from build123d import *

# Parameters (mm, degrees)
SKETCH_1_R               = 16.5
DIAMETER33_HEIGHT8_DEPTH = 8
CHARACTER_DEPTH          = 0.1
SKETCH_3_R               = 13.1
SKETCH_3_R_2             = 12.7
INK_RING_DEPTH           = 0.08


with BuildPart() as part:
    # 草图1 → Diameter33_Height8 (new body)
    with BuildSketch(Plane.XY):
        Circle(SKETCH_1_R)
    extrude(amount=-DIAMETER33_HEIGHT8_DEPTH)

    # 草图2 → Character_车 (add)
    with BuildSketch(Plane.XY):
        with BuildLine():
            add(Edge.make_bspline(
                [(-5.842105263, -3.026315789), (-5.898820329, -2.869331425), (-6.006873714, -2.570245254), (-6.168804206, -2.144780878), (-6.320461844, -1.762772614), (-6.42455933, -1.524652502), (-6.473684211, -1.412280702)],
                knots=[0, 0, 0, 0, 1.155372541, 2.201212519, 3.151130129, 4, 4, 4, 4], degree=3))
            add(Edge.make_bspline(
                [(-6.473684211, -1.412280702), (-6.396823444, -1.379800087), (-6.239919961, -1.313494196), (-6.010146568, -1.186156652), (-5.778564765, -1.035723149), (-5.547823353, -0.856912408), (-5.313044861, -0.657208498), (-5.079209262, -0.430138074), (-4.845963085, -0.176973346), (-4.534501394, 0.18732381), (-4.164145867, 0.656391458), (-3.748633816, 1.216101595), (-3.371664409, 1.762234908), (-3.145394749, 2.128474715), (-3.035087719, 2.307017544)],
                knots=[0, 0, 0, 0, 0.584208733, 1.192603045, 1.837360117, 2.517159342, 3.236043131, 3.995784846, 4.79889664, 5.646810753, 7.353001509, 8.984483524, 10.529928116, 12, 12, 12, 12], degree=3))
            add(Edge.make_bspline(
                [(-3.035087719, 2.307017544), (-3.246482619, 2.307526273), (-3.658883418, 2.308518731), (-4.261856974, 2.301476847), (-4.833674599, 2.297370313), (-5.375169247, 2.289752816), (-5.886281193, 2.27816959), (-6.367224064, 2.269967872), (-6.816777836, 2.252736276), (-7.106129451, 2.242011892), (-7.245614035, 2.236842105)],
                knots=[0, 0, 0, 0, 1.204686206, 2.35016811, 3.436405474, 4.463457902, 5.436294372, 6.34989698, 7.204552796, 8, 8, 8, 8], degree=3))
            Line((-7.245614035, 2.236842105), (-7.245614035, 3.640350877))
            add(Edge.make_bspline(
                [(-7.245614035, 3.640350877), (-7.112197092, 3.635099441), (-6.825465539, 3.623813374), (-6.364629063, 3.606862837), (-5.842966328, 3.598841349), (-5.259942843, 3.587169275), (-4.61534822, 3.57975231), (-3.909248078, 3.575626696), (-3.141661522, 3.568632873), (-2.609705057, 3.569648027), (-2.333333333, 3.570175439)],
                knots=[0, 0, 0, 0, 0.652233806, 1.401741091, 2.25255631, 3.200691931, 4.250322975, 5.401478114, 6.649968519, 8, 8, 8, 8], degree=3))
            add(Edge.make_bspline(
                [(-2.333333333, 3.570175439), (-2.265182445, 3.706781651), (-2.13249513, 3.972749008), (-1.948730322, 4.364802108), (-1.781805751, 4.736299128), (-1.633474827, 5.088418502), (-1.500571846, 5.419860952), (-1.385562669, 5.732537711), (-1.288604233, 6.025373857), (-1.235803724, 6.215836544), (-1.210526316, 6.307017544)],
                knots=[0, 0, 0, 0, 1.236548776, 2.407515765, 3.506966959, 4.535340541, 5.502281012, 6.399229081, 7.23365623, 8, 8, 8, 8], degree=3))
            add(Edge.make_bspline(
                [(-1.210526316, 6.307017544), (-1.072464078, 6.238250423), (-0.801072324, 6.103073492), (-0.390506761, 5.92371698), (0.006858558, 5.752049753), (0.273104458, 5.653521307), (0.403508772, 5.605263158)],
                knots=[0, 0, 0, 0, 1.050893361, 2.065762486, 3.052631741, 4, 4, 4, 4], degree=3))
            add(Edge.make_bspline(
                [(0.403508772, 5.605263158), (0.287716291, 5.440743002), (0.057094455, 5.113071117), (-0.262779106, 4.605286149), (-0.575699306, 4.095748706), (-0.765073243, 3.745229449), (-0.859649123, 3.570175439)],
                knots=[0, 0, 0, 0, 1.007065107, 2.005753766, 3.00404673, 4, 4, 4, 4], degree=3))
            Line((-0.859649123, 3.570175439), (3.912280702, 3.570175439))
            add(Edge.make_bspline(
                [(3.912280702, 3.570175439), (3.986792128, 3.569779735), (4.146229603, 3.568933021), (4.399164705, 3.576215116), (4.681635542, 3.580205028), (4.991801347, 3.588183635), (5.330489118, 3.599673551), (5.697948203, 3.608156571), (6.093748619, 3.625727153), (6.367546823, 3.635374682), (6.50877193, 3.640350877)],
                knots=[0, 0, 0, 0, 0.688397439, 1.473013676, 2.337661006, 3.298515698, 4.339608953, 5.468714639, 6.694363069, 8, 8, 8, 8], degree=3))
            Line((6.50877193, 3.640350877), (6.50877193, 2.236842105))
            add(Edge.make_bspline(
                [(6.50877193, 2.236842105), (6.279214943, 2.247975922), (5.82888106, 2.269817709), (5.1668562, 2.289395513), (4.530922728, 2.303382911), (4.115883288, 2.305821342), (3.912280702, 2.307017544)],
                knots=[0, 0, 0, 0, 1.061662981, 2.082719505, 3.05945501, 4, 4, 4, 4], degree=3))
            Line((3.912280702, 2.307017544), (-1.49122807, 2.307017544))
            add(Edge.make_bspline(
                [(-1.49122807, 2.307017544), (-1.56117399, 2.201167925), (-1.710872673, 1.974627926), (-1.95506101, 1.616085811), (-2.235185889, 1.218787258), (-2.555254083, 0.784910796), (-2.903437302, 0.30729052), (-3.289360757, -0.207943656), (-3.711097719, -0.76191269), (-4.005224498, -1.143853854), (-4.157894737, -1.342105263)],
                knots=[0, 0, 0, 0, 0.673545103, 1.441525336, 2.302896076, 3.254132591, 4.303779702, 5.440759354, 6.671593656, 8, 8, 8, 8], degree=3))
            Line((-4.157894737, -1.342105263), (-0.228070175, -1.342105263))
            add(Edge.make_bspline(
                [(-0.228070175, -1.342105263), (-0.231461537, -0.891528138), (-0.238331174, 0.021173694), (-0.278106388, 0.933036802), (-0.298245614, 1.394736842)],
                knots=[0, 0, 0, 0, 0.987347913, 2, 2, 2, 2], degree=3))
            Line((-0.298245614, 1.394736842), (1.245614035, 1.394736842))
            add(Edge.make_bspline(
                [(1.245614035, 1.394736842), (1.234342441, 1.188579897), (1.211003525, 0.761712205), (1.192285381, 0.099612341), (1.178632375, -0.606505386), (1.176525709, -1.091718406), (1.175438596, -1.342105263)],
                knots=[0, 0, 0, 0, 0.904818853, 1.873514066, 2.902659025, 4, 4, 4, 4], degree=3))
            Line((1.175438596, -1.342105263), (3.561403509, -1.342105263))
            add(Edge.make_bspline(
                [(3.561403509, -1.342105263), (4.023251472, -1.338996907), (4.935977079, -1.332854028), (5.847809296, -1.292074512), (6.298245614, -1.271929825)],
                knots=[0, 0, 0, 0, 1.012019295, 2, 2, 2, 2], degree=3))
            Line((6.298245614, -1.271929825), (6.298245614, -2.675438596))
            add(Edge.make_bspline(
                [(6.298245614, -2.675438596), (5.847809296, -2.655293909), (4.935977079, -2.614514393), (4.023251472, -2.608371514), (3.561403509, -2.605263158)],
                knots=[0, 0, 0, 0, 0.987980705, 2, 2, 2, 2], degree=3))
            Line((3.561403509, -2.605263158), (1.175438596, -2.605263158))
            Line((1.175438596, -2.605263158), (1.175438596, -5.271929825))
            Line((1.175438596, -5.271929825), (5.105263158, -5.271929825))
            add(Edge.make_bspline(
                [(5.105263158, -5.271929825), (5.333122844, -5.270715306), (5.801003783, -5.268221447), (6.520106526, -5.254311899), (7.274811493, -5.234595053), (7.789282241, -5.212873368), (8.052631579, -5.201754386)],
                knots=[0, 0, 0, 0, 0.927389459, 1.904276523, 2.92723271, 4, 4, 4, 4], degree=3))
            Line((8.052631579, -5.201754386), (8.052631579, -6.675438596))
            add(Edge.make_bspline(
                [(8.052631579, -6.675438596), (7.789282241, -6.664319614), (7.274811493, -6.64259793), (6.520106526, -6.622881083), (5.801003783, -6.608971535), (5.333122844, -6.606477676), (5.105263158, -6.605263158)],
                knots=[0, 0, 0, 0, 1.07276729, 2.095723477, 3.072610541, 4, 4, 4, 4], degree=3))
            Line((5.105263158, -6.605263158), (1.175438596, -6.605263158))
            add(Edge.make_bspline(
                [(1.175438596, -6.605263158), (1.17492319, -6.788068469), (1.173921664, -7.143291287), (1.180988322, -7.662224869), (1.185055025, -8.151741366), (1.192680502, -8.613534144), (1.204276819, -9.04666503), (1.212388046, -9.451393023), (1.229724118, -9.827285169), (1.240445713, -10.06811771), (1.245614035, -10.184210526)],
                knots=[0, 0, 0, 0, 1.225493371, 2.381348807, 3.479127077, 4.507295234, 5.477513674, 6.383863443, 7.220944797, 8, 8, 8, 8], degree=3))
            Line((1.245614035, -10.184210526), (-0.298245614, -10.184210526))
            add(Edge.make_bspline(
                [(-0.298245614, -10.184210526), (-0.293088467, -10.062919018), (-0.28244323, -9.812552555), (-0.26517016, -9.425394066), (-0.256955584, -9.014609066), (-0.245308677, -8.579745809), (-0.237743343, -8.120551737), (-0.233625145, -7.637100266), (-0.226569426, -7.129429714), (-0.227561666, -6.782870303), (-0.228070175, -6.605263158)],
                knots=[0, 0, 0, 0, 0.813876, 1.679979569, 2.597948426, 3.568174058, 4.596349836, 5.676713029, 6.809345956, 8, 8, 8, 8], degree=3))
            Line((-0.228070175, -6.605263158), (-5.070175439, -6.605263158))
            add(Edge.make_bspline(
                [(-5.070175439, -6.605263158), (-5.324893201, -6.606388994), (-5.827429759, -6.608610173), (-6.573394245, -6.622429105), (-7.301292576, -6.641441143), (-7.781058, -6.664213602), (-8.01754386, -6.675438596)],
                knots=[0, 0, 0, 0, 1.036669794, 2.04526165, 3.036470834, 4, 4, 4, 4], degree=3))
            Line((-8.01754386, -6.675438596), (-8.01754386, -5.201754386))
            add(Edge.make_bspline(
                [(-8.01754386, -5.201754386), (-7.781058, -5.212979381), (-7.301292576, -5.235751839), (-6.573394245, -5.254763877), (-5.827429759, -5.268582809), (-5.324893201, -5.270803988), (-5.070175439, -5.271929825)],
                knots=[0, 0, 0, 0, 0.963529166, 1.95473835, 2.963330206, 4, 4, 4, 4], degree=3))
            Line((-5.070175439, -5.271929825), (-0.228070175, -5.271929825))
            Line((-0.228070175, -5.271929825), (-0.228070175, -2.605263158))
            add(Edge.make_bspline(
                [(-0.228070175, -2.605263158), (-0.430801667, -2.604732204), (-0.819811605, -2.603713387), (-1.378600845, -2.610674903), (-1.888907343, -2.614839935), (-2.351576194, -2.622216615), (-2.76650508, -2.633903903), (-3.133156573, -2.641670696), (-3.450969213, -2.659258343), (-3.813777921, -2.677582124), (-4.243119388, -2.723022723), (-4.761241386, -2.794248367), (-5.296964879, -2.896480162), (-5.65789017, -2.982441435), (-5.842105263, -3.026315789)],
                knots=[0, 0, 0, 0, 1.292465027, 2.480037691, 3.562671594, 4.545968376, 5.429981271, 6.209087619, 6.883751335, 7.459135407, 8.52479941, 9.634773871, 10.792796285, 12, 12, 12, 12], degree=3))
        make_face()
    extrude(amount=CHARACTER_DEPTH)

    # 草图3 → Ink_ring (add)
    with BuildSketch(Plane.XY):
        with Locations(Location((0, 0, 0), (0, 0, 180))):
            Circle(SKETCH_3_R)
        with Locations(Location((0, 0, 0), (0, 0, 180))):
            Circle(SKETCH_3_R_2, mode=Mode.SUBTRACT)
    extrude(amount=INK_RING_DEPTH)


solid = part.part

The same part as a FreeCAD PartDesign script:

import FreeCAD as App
import Part
import Sketcher

V = App.Vector
Q = App.Units.Quantity

doc = App.newDocument("Part")
body = doc.addObject("PartDesign::Body", "Body")

# Sketch on XY plane
sketch1 = body.newObject("Sketcher::SketchObject", "Sketch")
sketch1.AttachmentSupport = (doc.getObject("XY_Plane"), [""])
sketch1.MapMode = "FlatFace"
sketch1.addGeometry(Part.Circle(V(0, 0, 0), V(0, 0, 1), 16), False)
sketch1.addConstraint(Sketcher.Constraint("Coincident", 0, 3, -1, 1))
sketch1.addConstraint(Sketcher.Constraint("Diameter", 0, Q("33 mm")))
pad1 = body.newObject("PartDesign::Pad", "Pad")
pad1.Profile = sketch1
pad1.Length = 8
pad1.Reversed = True

# Sketch on XY plane
sketch2 = body.newObject("Sketcher::SketchObject", "Sketch001")
sketch2.AttachmentSupport = (doc.getObject("XY_Plane"), [""])
sketch2.MapMode = "FlatFace"
sketch2.addGeometry(Part.BSplineCurve([V(-5.842105, -3.026316, 0), V(-5.89882, -2.869331, 0), V(-6.006874, -2.570245, 0), V(-6.168804, -2.144781, 0), V(-6.320462, -1.762773, 0), V(-6.424559, -1.524653, 0), V(-6.473684, -1.412281, 0)], [4, 1, 1, 1, 4], [0, 1.155372541, 2.201212519, 3.151130129, 4], False, 3, [1, 1, 1, 1, 1, 1, 1], False), False)
sketch2.addGeometry(Part.BSplineCurve([V(-0.22807, -2.605263, 0), V(-0.430802, -2.604732, 0), V(-0.819812, -2.603713, 0), V(-1.378601, -2.610675, 0), V(-1.888907, -2.61484, 0), V(-2.351576, -2.622217, 0), V(-2.766505, -2.633904, 0), V(-3.133157, -2.641671, 0), V(-3.450969, -2.659258, 0), V(-3.813778, -2.677582, 0), V(-4.243119, -2.723023, 0), V(-4.761241, -2.794248, 0), V(-5.296965, -2.89648, 0), V(-5.65789, -2.982441, 0), V(-5.842105, -3.026316, 0)], [4, 1, 1, 1, 1, 1, 1, 1, 1, 1, 1, 1, 4], [0, 1.292465027, 2.480037691, 3.562671594, 4.545968376, 5.429981271, 6.209087619, 6.883751335, 7.459135407, 8.52479941, 9.634773871, 10.792796285, 12], False, 3, [1, 1, 1, 1, 1, 1, 1, 1, 1, 1, 1, 1, 1, 1, 1], False), False)
sketch2.addGeometry(Part.LineSegment(V(-0.22807, -2.605263, 0), V(-0.22807, -5.27193, 0)), False)
sketch2.addGeometry(Part.LineSegment(V(-0.22807, -5.27193, 0), V(-5.070175, -5.27193, 0)), False)
sketch2.addGeometry(Part.BSplineCurve([V(-8.017544, -5.201754, 0), V(-7.781058, -5.212979, 0), V(-7.301293, -5.235752, 0), V(-6.573394, -5.254764, 0), V(-5.82743, -5.268583, 0), V(-5.324893, -5.270804, 0), V(-5.070175, -5.27193, 0)], [4, 1, 1, 1, 4], [0, 0.963529166, 1.95473835, 2.963330206, 4], False, 3, [1, 1, 1, 1, 1, 1, 1], False), False)
sketch2.addGeometry(Part.LineSegment(V(-8.017544, -5.201754, 0), V(-8.017544, -6.675439, 0)), False)
sketch2.addGeometry(Part.BSplineCurve([V(-5.070175, -6.605263, 0), V(-5.324893, -6.606389, 0), V(-5.82743, -6.60861, 0), V(-6.573394, -6.622429, 0), V(-7.301293, -6.641441, 0), V(-7.781058, -6.664214, 0), V(-8.017544, -6.675439, 0)], [4, 1, 1, 1, 4], [0, 1.036669794, 2.04526165, 3.036470834, 4], False, 3, [1, 1, 1, 1, 1, 1, 1], False), False)
sketch2.addGeometry(Part.LineSegment(V(-5.070175, -6.605263, 0), V(-0.22807, -6.605263, 0)), False)
sketch2.addGeometry(Part.BSplineCurve([V(-0.298246, -10.184211, 0), V(-0.293088, -10.062919, 0), V(-0.282443, -9.812553, 0), V(-0.26517, -9.425394, 0), V(-0.256956, -9.014609, 0), V(-0.245309, -8.579746, 0), V(-0.237743, -8.120552, 0), V(-0.233625, -7.6371, 0), V(-0.226569, -7.12943, 0), V(-0.227562, -6.78287, 0), V(-0.22807, -6.605263, 0)], [4, 1, 1, 1, 1, 1, 1, 1, 4], [0, 0.813876, 1.679979569, 2.597948426, 3.568174058, 4.596349836, 5.676713029, 6.809345956, 8], False, 3, [1, 1, 1, 1, 1, 1, 1, 1, 1, 1, 1], False), False)
sketch2.addGeometry(Part.LineSegment(V(-0.298246, -10.184211, 0), V(1.245614, -10.184211, 0)), False)
sketch2.addGeometry(Part.BSplineCurve([V(1.175439, -6.605263, 0), V(1.174923, -6.788068, 0), V(1.173922, -7.143291, 0), V(1.180988, -7.662225, 0), V(1.185055, -8.151741, 0), V(1.192681, -8.613534, 0), V(1.204277, -9.046665, 0), V(1.212388, -9.451393, 0), V(1.229724, -9.827285, 0), V(1.240446, -10.068118, 0), V(1.245614, -10.184211, 0)], [4, 1, 1, 1, 1, 1, 1, 1, 4], [0, 1.225493371, 2.381348807, 3.479127077, 4.507295234, 5.477513674, 6.383863443, 7.220944797, 8], False, 3, [1, 1, 1, 1, 1, 1, 1, 1, 1, 1, 1], False), False)
sketch2.addGeometry(Part.LineSegment(V(1.175439, -6.605263, 0), V(5.105263, -6.605263, 0)), False)
sketch2.addGeometry(Part.BSplineCurve([V(8.052632, -6.675439, 0), V(7.789282, -6.66432, 0), V(7.274811, -6.642598, 0), V(6.520107, -6.622881, 0), V(5.801004, -6.608972, 0), V(5.333123, -6.606478, 0), V(5.105263, -6.605263, 0)], [4, 1, 1, 1, 4], [0, 1.07276729, 2.095723477, 3.072610541, 4], False, 3, [1, 1, 1, 1, 1, 1, 1], False), False)
sketch2.addGeometry(Part.LineSegment(V(8.052632, -6.675439, 0), V(8.052632, -5.201754, 0)), False)
sketch2.addGeometry(Part.BSplineCurve([V(5.105263, -5.27193, 0), V(5.333123, -5.270715, 0), V(5.801004, -5.268221, 0), V(6.520107, -5.254312, 0), V(7.274811, -5.234595, 0), V(7.789282, -5.212873, 0), V(8.052632, -5.201754, 0)], [4, 1, 1, 1, 4], [0, 0.927389459, 1.904276523, 2.92723271, 4], False, 3, [1, 1, 1, 1, 1, 1, 1], False), False)
sketch2.addGeometry(Part.LineSegment(V(5.105263, -5.27193, 0), V(1.175439, -5.27193, 0)), False)
sketch2.addGeometry(Part.LineSegment(V(1.175439, -5.27193, 0), V(1.175439, -2.605263, 0)), False)
sketch2.addGeometry(Part.LineSegment(V(1.175439, -2.605263, 0), V(3.561404, -2.605263, 0)), False)
sketch2.addGeometry(Part.BSplineCurve([V(6.298246, -2.675439, 0), V(5.847809, -2.655294, 0), V(4.935977, -2.614514, 0), V(4.023251, -2.608372, 0), V(3.561404, -2.605263, 0)], [4, 1, 4], [0, 0.987980705, 2], False, 3, [1, 1, 1, 1, 1], False), False)
sketch2.addGeometry(Part.LineSegment(V(6.298246, -2.675439, 0), V(6.298246, -1.27193, 0)), False)
sketch2.addGeometry(Part.BSplineCurve([V(3.561404, -1.342105, 0), V(4.023251, -1.338997, 0), V(4.935977, -1.332854, 0), V(5.847809, -1.292075, 0), V(6.298246, -1.27193, 0)], [4, 1, 4], [0, 1.012019295, 2], False, 3, [1, 1, 1, 1, 1], False), False)
sketch2.addGeometry(Part.LineSegment(V(3.561404, -1.342105, 0), V(1.175439, -1.342105, 0)), False)
sketch2.addGeometry(Part.BSplineCurve([V(1.245614, 1.394737, 0), V(1.234342, 1.18858, 0), V(1.211004, 0.761712, 0), V(1.192285, 0.099612, 0), V(1.178632, -0.606505, 0), V(1.176526, -1.091718, 0), V(1.175439, -1.342105, 0)], [4, 1, 1, 1, 4], [0, 0.904818853, 1.873514066, 2.902659025, 4], False, 3, [1, 1, 1, 1, 1, 1, 1], False), False)
sketch2.addGeometry(Part.LineSegment(V(1.245614, 1.394737, 0), V(-0.298246, 1.394737, 0)), False)
sketch2.addGeometry(Part.BSplineCurve([V(-0.22807, -1.342105, 0), V(-0.231462, -0.891528, 0), V(-0.238331, 0.021174, 0), V(-0.278106, 0.933037, 0), V(-0.298246, 1.394737, 0)], [4, 1, 4], [0, 0.987347913, 2], False, 3, [1, 1, 1, 1, 1], False), False)
sketch2.addGeometry(Part.LineSegment(V(-0.22807, -1.342105, 0), V(-4.157895, -1.342105, 0)), False)
sketch2.addGeometry(Part.BSplineCurve([V(-1.491228, 2.307018, 0), V(-1.561174, 2.201168, 0), V(-1.710873, 1.974628, 0), V(-1.955061, 1.616086, 0), V(-2.235186, 1.218787, 0), V(-2.555254, 0.784911, 0), V(-2.903437, 0.307291, 0), V(-3.289361, -0.207944, 0), V(-3.711098, -0.761913, 0), V(-4.005224, -1.143854, 0), V(-4.157895, -1.342105, 0)], [4, 1, 1, 1, 1, 1, 1, 1, 4], [0, 0.673545103, 1.441525336, 2.302896076, 3.254132591, 4.303779702, 5.440759354, 6.671593656, 8], False, 3, [1, 1, 1, 1, 1, 1, 1, 1, 1, 1, 1], False), False)
sketch2.addGeometry(Part.LineSegment(V(-1.491228, 2.307018, 0), V(3.912281, 2.307018, 0)), False)
sketch2.addGeometry(Part.BSplineCurve([V(6.508772, 2.236842, 0), V(6.279215, 2.247976, 0), V(5.828881, 2.269818, 0), V(5.166856, 2.289396, 0), V(4.530923, 2.303383, 0), V(4.115883, 2.305821, 0), V(3.912281, 2.307018, 0)], [4, 1, 1, 1, 4], [0, 1.061662981, 2.082719505, 3.05945501, 4], False, 3, [1, 1, 1, 1, 1, 1, 1], False), False)
sketch2.addGeometry(Part.LineSegment(V(6.508772, 2.236842, 0), V(6.508772, 3.640351, 0)), False)
sketch2.addGeometry(Part.BSplineCurve([V(3.912281, 3.570175, 0), V(3.986792, 3.56978, 0), V(4.14623, 3.568933, 0), V(4.399165, 3.576215, 0), V(4.681636, 3.580205, 0), V(4.991801, 3.588184, 0), V(5.330489, 3.599674, 0), V(5.697948, 3.608157, 0), V(6.093749, 3.625727, 0), V(6.367547, 3.635375, 0), V(6.508772, 3.640351, 0)], [4, 1, 1, 1, 1, 1, 1, 1, 4], [0, 0.688397439, 1.473013676, 2.337661006, 3.298515698, 4.339608953, 5.468714639, 6.694363069, 8], False, 3, [1, 1, 1, 1, 1, 1, 1, 1, 1, 1, 1], False), False)
sketch2.addGeometry(Part.LineSegment(V(3.912281, 3.570175, 0), V(-0.859649, 3.570175, 0)), False)
sketch2.addGeometry(Part.BSplineCurve([V(0.403509, 5.605263, 0), V(0.287716, 5.440743, 0), V(0.057094, 5.113071, 0), V(-0.262779, 4.605286, 0), V(-0.575699, 4.095749, 0), V(-0.765073, 3.745229, 0), V(-0.859649, 3.570175, 0)], [4, 1, 1, 1, 4], [0, 1.007065107, 2.005753766, 3.00404673, 4], False, 3, [1, 1, 1, 1, 1, 1, 1], False), False)
sketch2.addGeometry(Part.BSplineCurve([V(-1.210526, 6.307018, 0), V(-1.072464, 6.23825, 0), V(-0.801072, 6.103073, 0), V(-0.390507, 5.923717, 0), V(0.006859, 5.75205, 0), V(0.273104, 5.653521, 0), V(0.403509, 5.605263, 0)], [4, 1, 1, 1, 4], [0, 1.050893361, 2.065762486, 3.052631741, 4], False, 3, [1, 1, 1, 1, 1, 1, 1], False), False)
sketch2.addGeometry(Part.BSplineCurve([V(-2.333333, 3.570175, 0), V(-2.265182, 3.706782, 0), V(-2.132495, 3.972749, 0), V(-1.94873, 4.364802, 0), V(-1.781806, 4.736299, 0), V(-1.633475, 5.088419, 0), V(-1.500572, 5.419861, 0), V(-1.385563, 5.732538, 0), V(-1.288604, 6.025374, 0), V(-1.235804, 6.215837, 0), V(-1.210526, 6.307018, 0)], [4, 1, 1, 1, 1, 1, 1, 1, 4], [0, 1.236548776, 2.407515765, 3.506966959, 4.535340541, 5.502281012, 6.399229081, 7.23365623, 8], False, 3, [1, 1, 1, 1, 1, 1, 1, 1, 1, 1, 1], False), False)
sketch2.addGeometry(Part.BSplineCurve([V(-7.245614, 3.640351, 0), V(-7.112197, 3.635099, 0), V(-6.825466, 3.623813, 0), V(-6.364629, 3.606863, 0), V(-5.842966, 3.598841, 0), V(-5.259943, 3.587169, 0), V(-4.615348, 3.579752, 0), V(-3.909248, 3.575627, 0), V(-3.141662, 3.568633, 0), V(-2.609705, 3.569648, 0), V(-2.333333, 3.570175, 0)], [4, 1, 1, 1, 1, 1, 1, 1, 4], [0, 0.652233806, 1.401741091, 2.25255631, 3.200691931, 4.250322975, 5.401478114, 6.649968519, 8], False, 3, [1, 1, 1, 1, 1, 1, 1, 1, 1, 1, 1], False), False)
sketch2.addGeometry(Part.LineSegment(V(-7.245614, 3.640351, 0), V(-7.245614, 2.236842, 0)), False)
sketch2.addGeometry(Part.BSplineCurve([V(-3.035088, 2.307018, 0), V(-3.246483, 2.307526, 0), V(-3.658883, 2.308519, 0), V(-4.261857, 2.301477, 0), V(-4.833675, 2.29737, 0), V(-5.375169, 2.289753, 0), V(-5.886281, 2.27817, 0), V(-6.367224, 2.269968, 0), V(-6.816778, 2.252736, 0), V(-7.106129, 2.242012, 0), V(-7.245614, 2.236842, 0)], [4, 1, 1, 1, 1, 1, 1, 1, 4], [0, 1.204686206, 2.35016811, 3.436405474, 4.463457902, 5.436294372, 6.34989698, 7.204552796, 8], False, 3, [1, 1, 1, 1, 1, 1, 1, 1, 1, 1, 1], False), False)
sketch2.addGeometry(Part.BSplineCurve([V(-6.473684, -1.412281, 0), V(-6.396823, -1.3798, 0), V(-6.23992, -1.313494, 0), V(-6.010147, -1.186157, 0), V(-5.778565, -1.035723, 0), V(-5.547823, -0.856912, 0), V(-5.313045, -0.657208, 0), V(-5.079209, -0.430138, 0), V(-4.845963, -0.176973, 0), V(-4.534501, 0.187324, 0), V(-4.164146, 0.656391, 0), V(-3.748634, 1.216102, 0), V(-3.371664, 1.762235, 0), V(-3.145395, 2.128475, 0), V(-3.035088, 2.307018, 0)], [4, 1, 1, 1, 1, 1, 1, 1, 1, 1, 1, 1, 4], [0, 0.584208733, 1.192603045, 1.837360117, 2.517159342, 3.236043131, 3.995784846, 4.79889664, 5.646810753, 7.353001509, 8.984483524, 10.529928116, 12], False, 3, [1, 1, 1, 1, 1, 1, 1, 1, 1, 1, 1, 1, 1, 1, 1], False), False)
sketch2.addConstraint(Sketcher.Constraint("Block", 0))
sketch2.addConstraint(Sketcher.Constraint("Block", 1))
sketch2.addConstraint(Sketcher.Constraint("Block", 4))
sketch2.addConstraint(Sketcher.Constraint("Block", 6))
sketch2.addConstraint(Sketcher.Constraint("Block", 8))
sketch2.addConstraint(Sketcher.Constraint("Block", 10))
sketch2.addConstraint(Sketcher.Constraint("Block", 12))
sketch2.addConstraint(Sketcher.Constraint("Block", 14))
sketch2.addConstraint(Sketcher.Constraint("Block", 18))
sketch2.addConstraint(Sketcher.Constraint("Block", 20))
sketch2.addConstraint(Sketcher.Constraint("Block", 22))
sketch2.addConstraint(Sketcher.Constraint("Block", 24))
sketch2.addConstraint(Sketcher.Constraint("Block", 26))
sketch2.addConstraint(Sketcher.Constraint("Block", 28))
sketch2.addConstraint(Sketcher.Constraint("Block", 30))
sketch2.addConstraint(Sketcher.Constraint("Block", 32))
sketch2.addConstraint(Sketcher.Constraint("Block", 33))
sketch2.addConstraint(Sketcher.Constraint("Block", 34))
sketch2.addConstraint(Sketcher.Constraint("Block", 35))
sketch2.addConstraint(Sketcher.Constraint("Block", 37))
sketch2.addConstraint(Sketcher.Constraint("Block", 38))
sketch2.addConstraint(Sketcher.Constraint("Coincident", 1, 1, 2, 1))
sketch2.addConstraint(Sketcher.Constraint("Coincident", 2, 2, 3, 1))
sketch2.addConstraint(Sketcher.Constraint("Coincident", 3, 2, 4, 2))
sketch2.addConstraint(Sketcher.Constraint("Coincident", 4, 1, 5, 1))
sketch2.addConstraint(Sketcher.Constraint("Coincident", 5, 2, 6, 2))
sketch2.addConstraint(Sketcher.Constraint("Coincident", 6, 1, 7, 1))
sketch2.addConstraint(Sketcher.Constraint("Coincident", 7, 2, 8, 2))
sketch2.addConstraint(Sketcher.Constraint("Coincident", 8, 1, 9, 1))
sketch2.addConstraint(Sketcher.Constraint("Coincident", 9, 2, 10, 2))
sketch2.addConstraint(Sketcher.Constraint("Coincident", 10, 1, 11, 1))
sketch2.addConstraint(Sketcher.Constraint("Coincident", 11, 2, 12, 2))
sketch2.addConstraint(Sketcher.Constraint("Coincident", 12, 1, 13, 1))
sketch2.addConstraint(Sketcher.Constraint("Coincident", 13, 2, 14, 2))
sketch2.addConstraint(Sketcher.Constraint("Coincident", 14, 1, 15, 1))
sketch2.addConstraint(Sketcher.Constraint("Coincident", 15, 2, 16, 1))
sketch2.addConstraint(Sketcher.Constraint("Coincident", 16, 2, 17, 1))
sketch2.addConstraint(Sketcher.Constraint("Coincident", 17, 2, 18, 2))
sketch2.addConstraint(Sketcher.Constraint("Coincident", 18, 1, 19, 1))
sketch2.addConstraint(Sketcher.Constraint("Coincident", 19, 2, 20, 2))
sketch2.addConstraint(Sketcher.Constraint("Coincident", 20, 1, 21, 1))
sketch2.addConstraint(Sketcher.Constraint("Coincident", 21, 2, 22, 2))
sketch2.addConstraint(Sketcher.Constraint("Coincident", 22, 1, 23, 1))
sketch2.addConstraint(Sketcher.Constraint("Coincident", 23, 2, 24, 2))
sketch2.addConstraint(Sketcher.Constraint("Coincident", 24, 1, 25, 1))
sketch2.addConstraint(Sketcher.Constraint("Coincident", 25, 2, 26, 2))
sketch2.addConstraint(Sketcher.Constraint("Coincident", 26, 1, 27, 1))
sketch2.addConstraint(Sketcher.Constraint("Coincident", 27, 2, 28, 2))
sketch2.addConstraint(Sketcher.Constraint("Coincident", 28, 1, 29, 1))
sketch2.addConstraint(Sketcher.Constraint("Coincident", 29, 2, 30, 2))
sketch2.addConstraint(Sketcher.Constraint("Coincident", 30, 1, 31, 1))
sketch2.addConstraint(Sketcher.Constraint("Coincident", 31, 2, 32, 2))
sketch2.addConstraint(Sketcher.Constraint("Coincident", 35, 1, 36, 1))
sketch2.addConstraint(Sketcher.Constraint("Coincident", 36, 2, 37, 2))
sketch2.addConstraint(Sketcher.Constraint("Vertical", 2))
sketch2.addConstraint(Sketcher.Constraint("Horizontal", 3))
sketch2.addConstraint(Sketcher.Constraint("Horizontal", 15))
sketch2.addConstraint(Sketcher.Constraint("Vertical", 16))
sketch2.addConstraint(Sketcher.Constraint("Horizontal", 17))
sketch2.addConstraint(Sketcher.Constraint("Vertical", 16, 2, 21, 2))
pad2 = body.newObject("PartDesign::Pad", "Pad001")
pad2.Profile = sketch2
pad2.Length = 0.1

# Sketch on XY plane
sketch3 = body.newObject("Sketcher::SketchObject", "Sketch002")
sketch3.AttachmentSupport = (doc.getObject("XY_Plane"), [""])
sketch3.MapMode = "FlatFace"
sketch3.addGeometry(Part.Circle(V(0, 0, 0), V(0, 0, 1), 13), False)
sketch3.addGeometry(Part.Circle(V(0, 0, 0), V(0, 0, 1), 13), False)
sketch3.addConstraint(Sketcher.Constraint("Coincident", 0, 3, -1, 1))
sketch3.addConstraint(Sketcher.Constraint("Coincident", 1, 3, -1, 1))
sketch3.addConstraint(Sketcher.Constraint("Diameter", 0, Q("26.2 mm")))
sketch3.addConstraint(Sketcher.Constraint("Diameter", 1, Q("25.4 mm")))
pad3 = body.newObject("PartDesign::Pad", "Pad002")
pad3.Profile = sketch3
pad3.Length = 0.08

doc.recompute()
